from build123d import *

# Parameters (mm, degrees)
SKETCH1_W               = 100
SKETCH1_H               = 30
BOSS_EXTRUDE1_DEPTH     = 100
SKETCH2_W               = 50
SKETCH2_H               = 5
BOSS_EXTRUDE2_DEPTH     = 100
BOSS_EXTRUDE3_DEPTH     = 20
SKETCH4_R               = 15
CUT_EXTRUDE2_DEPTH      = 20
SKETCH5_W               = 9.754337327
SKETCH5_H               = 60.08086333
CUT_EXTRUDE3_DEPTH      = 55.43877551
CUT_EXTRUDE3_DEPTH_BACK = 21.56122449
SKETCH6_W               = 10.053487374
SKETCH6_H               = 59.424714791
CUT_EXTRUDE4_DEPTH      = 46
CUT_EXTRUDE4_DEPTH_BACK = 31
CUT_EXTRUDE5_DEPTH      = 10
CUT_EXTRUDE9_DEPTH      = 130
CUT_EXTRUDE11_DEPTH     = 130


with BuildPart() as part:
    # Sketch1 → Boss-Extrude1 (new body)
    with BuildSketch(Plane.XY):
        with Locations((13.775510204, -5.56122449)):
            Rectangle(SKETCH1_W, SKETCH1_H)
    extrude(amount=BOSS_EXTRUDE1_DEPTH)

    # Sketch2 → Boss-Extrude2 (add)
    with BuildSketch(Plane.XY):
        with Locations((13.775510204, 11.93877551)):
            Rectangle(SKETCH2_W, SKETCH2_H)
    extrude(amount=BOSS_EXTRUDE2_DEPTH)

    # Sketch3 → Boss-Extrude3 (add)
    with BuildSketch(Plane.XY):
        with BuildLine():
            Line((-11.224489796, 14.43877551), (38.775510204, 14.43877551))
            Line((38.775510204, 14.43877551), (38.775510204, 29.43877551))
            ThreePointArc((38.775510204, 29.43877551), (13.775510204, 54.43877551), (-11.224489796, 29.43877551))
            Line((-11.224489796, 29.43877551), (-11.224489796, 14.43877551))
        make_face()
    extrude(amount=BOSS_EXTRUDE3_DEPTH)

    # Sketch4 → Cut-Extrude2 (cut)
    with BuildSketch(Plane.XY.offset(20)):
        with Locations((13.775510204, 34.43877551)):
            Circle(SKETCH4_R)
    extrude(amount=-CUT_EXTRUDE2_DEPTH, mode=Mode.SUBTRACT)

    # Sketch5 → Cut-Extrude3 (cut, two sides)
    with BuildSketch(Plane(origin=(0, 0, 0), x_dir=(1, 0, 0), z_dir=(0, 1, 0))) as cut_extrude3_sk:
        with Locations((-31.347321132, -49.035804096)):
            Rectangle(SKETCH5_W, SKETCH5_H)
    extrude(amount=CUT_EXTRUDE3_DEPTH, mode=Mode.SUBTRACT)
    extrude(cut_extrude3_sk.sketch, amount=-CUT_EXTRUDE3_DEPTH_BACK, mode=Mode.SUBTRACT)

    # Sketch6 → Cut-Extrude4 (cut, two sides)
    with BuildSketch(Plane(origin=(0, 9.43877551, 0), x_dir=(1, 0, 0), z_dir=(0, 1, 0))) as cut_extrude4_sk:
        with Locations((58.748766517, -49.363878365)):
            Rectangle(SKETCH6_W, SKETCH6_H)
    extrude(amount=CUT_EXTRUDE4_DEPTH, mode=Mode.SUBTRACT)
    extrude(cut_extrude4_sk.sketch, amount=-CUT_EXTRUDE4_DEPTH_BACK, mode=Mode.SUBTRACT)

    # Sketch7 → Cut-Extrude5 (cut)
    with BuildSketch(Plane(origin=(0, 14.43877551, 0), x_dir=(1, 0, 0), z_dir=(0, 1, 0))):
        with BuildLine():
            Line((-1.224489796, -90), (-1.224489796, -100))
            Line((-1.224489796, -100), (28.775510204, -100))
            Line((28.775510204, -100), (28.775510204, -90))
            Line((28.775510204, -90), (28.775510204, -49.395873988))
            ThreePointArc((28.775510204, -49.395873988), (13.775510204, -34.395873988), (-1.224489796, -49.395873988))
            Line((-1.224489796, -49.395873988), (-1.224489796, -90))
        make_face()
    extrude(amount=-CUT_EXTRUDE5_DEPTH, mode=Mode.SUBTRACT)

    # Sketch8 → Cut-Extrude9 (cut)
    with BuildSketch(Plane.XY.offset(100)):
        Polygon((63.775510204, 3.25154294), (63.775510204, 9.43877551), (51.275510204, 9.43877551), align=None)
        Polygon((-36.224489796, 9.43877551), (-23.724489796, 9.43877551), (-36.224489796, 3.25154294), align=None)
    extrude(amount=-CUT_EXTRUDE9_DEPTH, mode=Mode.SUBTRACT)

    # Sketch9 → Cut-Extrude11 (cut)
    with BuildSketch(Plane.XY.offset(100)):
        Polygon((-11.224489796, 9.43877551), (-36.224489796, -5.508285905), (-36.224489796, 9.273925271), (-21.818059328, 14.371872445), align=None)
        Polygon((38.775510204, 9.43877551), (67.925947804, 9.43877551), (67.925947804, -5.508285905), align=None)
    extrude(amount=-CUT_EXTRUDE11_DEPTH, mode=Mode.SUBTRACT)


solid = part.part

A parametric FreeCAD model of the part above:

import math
import FreeCAD as App
import Part
import Sketcher
Q = App.Units.Quantity


def add_polygon(sketch, points):
    """Adds a closed chain of lines whose ends are joined by coincident constraints."""
    first, n = sketch.GeometryCount, len(points)
    for a, b in zip(points, points[1:] + points[:1]):
        sketch.addGeometry(Part.LineSegment(App.Vector(*a, 0), App.Vector(*b, 0)), False)
    for i in range(n):
        sketch.addConstraint(Sketcher.Constraint("Coincident", first + i, 2, first + (i + 1) % n, 1))

doc = App.newDocument("Part")
params = doc.addObject("Spreadsheet::Sheet", "Params")
for row, (alias, value) in enumerate([
    ("sketch1_width", "100 mm"),
    ("sketch1_height", "30 mm"),
    ("pad1_length", "100 mm"),
    ("sketch2_width", "50 mm"),
    ("sketch2_height", "5 mm"),
    ("pad2_length", "100 mm"),
    ("sketch3_radius", "25 mm"),
    ("sketch3_height", "15 mm"),
    ("pad3_length", "20 mm"),
    ("sketch4_diameter", "30 mm"),
    ("pocket1_length", "20 mm"),
    ("sketch7_radius", "15 mm"),
    ("pocket4_length", "10 mm"),
    ("sketch8_width", "12.5 mm"),
    ("pocket5_length", "130 mm"),
    ("pocket6_length", "130 mm"),
], start=1):
    params.set(f"A{row}", alias)
    params.set(f"B{row}", "=" + value)
    params.setAlias(f"B{row}", alias)

body = doc.addObject("PartDesign::Body", "Body")

sketch1 = body.newObject("Sketcher::SketchObject", "Sketch")
sketch1.AttachmentSupport = (doc.getObject("XY_Plane"), [""])
sketch1.MapMode = "FlatFace"
add_polygon(sketch1, [(-36, 9), (-36, -21), (64, -21), (64, 9)])
sketch1.addConstraint([
    Sketcher.Constraint("Vertical", 0),
    Sketcher.Constraint("Horizontal", 1),
    Sketcher.Constraint("Vertical", 2),
    Sketcher.Constraint("Horizontal", 3),
    Sketcher.Constraint("DistanceX", 1, 1, 1, 2, Q("100 mm")),
    Sketcher.Constraint("DistanceY", 0, 2, 0, 1, Q("30 mm")),
    Sketcher.Constraint("DistanceX", 0, 2, -1, 1, Q("36.22449 mm")),
    Sketcher.Constraint("DistanceY", 0, 2, -1, 1, Q("20.561224 mm")),
])
sketch1.setExpression("Constraints[8]", "Params.sketch1_width")
sketch1.setExpression("Constraints[9]", "Params.sketch1_height")
pad1 = body.newObject("PartDesign::Pad", "Pad")
pad1.Profile = sketch1
pad1.setExpression("Length", "Params.pad1_length")

sketch2 = body.newObject("Sketcher::SketchObject", "Sketch001")
sketch2.AttachmentSupport = (doc.getObject("XY_Plane"), [""])
sketch2.MapMode = "FlatFace"
add_polygon(sketch2, [(-11, 14), (-11, 9), (39, 9), (39, 14)])
sketch2.addConstraint([
    Sketcher.Constraint("Vertical", 0),
    Sketcher.Constraint("Horizontal", 1),
    Sketcher.Constraint("Vertical", 2),
    Sketcher.Constraint("Horizontal", 3),
    Sketcher.Constraint("DistanceX", 1, 1, 1, 2, Q("50 mm")),
    Sketcher.Constraint("DistanceY", 0, 2, 0, 1, Q("5 mm")),
    Sketcher.Constraint("DistanceX", 0, 2, -1, 1, Q("11.22449 mm")),
    Sketcher.Constraint("DistanceY", -1, 1, 0, 2, Q("9.438776 mm")),
])
sketch2.setExpression("Constraints[8]", "Params.sketch2_width")
sketch2.setExpression("Constraints[9]", "Params.sketch2_height")
pad2 = body.newObject("PartDesign::Pad", "Pad001")
pad2.Profile = sketch2
pad2.setExpression("Length", "Params.pad2_length")

sketch3 = body.newObject("Sketcher::SketchObject", "Sketch002")
sketch3.AttachmentSupport = (doc.getObject("XY_Plane"), [""])
sketch3.MapMode = "FlatFace"
sketch3.addGeometry([
    Part.LineSegment(App.Vector(-11, 14, 0), App.Vector(39, 14, 0)),
    Part.LineSegment(App.Vector(39, 14, 0), App.Vector(39, 29, 0)),
    Part.ArcOfCircle(Part.Circle(App.Vector(14, 29, 0), App.Vector(0, 0, 1), 25), math.radians(0), math.radians(180)),
    Part.LineSegment(App.Vector(-11, 29, 0), App.Vector(-11, 14, 0)),
], False)
sketch3.addConstraint([
    Sketcher.Constraint("Coincident", 0, 2, 1, 1),
    Sketcher.Constraint("Tangent", 1, 2, 2, 1),
    Sketcher.Constraint("Tangent", 2, 2, 3, 1),
    Sketcher.Constraint("Coincident", 3, 2, 0, 1),
    Sketcher.Constraint("Horizontal", 0),
    Sketcher.Constraint("Vertical", 1),
    Sketcher.Constraint("Vertical", 3),
    Sketcher.Constraint("Radius", 2, Q("25 mm")),
    Sketcher.Constraint("DistanceY", 1, 1, 1, 2, Q("15 mm")),
    Sketcher.Constraint("DistanceX", -1, 1, 2, 3, Q("13.77551 mm")),
    Sketcher.Constraint("DistanceY", -1, 1, 2, 3, Q("29.438776 mm")),
])
sketch3.setExpression("Constraints[7]", "Params.sketch3_radius")
sketch3.setExpression("Constraints[8]", "Params.sketch3_height")
pad3 = body.newObject("PartDesign::Pad", "Pad002")
pad3.Profile = sketch3
pad3.setExpression("Length", "Params.pad3_length")

sketch4 = body.newObject("Sketcher::SketchObject", "Sketch003")
sketch4.AttachmentSupport = (doc.getObject("XY_Plane"), [""])
sketch4.MapMode = "FlatFace"
sketch4.AttachmentOffset = App.Placement(App.Vector(0, 0, 20), App.Rotation())
sketch4.addGeometry(Part.Circle(App.Vector(14, 34, 0), App.Vector(0, 0, 1), 15), False)
sketch4.addConstraint([
    Sketcher.Constraint("Diameter", 0, Q("30 mm")),
    Sketcher.Constraint("DistanceX", -1, 1, 0, 3, Q("13.77551 mm")),
    Sketcher.Constraint("DistanceY", -1, 1, 0, 3, Q("34.438776 mm")),
])
sketch4.setExpression("Constraints[0]", "Params.sketch4_diameter")
pocket1 = body.newObject("PartDesign::Pocket", "Pocket")
pocket1.Profile = sketch4
pocket1.setExpression("Length", "Params.pocket1_length")

sketch5 = body.newObject("Sketcher::SketchObject", "Sketch004")
sketch5.AttachmentSupport = (doc.getObject("XZ_Plane"), [""])
sketch5.MapMode = "FlatFace"
add_polygon(sketch5, [(-36, 19), (-36, 79), (-26, 79), (-26, 19)])
sketch5.addConstraint([
    Sketcher.Constraint("Vertical", 0),
    Sketcher.Constraint("Horizontal", 1),
    Sketcher.Constraint("Vertical", 2),
    Sketcher.Constraint("Horizontal", 3),
    Sketcher.Constraint("DistanceX", 1, 1, 1, 2, Q("9.754337 mm")),
    Sketcher.Constraint("DistanceY", 0, 1, 0, 2, Q("60.080863 mm")),
    Sketcher.Constraint("DistanceX", 0, 2, -1, 1, Q("36.22449 mm")),
    Sketcher.Constraint("DistanceY", -1, 1, 0, 2, Q("79.076236 mm")),
])
pocket2 = body.newObject("PartDesign::Pocket", "Pocket001")
pocket2.Profile = sketch5
pocket2.Type = "ThroughAll"
pocket2.Midplane = True

sketch6 = body.newObject("Sketcher::SketchObject", "Sketch005")
sketch6.AttachmentSupport = (doc.getObject("XZ_Plane"), [""])
sketch6.MapMode = "FlatFace"
sketch6.AttachmentOffset = App.Placement(App.Vector(0, 0, -9.438776), App.Rotation())
add_polygon(sketch6, [(54, 20), (54, 79), (64, 79), (64, 20)])
sketch6.addConstraint([
    Sketcher.Constraint("Vertical", 0),
    Sketcher.Constraint("Horizontal", 1),
    Sketcher.Constraint("Vertical", 2),
    Sketcher.Constraint("Horizontal", 3),
    Sketcher.Constraint("DistanceX", 1, 1, 1, 2, Q("10.053487 mm")),
    Sketcher.Constraint("DistanceY", 0, 1, 0, 2, Q("59.424715 mm")),
    Sketcher.Constraint("DistanceX", -1, 1, 1, 2, Q("63.77551 mm")),
    Sketcher.Constraint("DistanceY", -1, 1, 2, 2, Q("19.651521 mm")),
])
pocket3 = body.newObject("PartDesign::Pocket", "Pocket002")
pocket3.Profile = sketch6
pocket3.Type = "ThroughAll"
pocket3.Midplane = True

sketch7 = body.newObject("Sketcher::SketchObject", "Sketch006")
sketch7.AttachmentSupport = (doc.getObject("XZ_Plane"), [""])
sketch7.MapMode = "FlatFace"
sketch7.AttachmentOffset = App.Placement(App.Vector(0, 0, -14.438776), App.Rotation())
sketch7.addGeometry([
    Part.LineSegment(App.Vector(-1, 100, 0), App.Vector(29, 100, 0)),
    Part.LineSegment(App.Vector(29, 100, 0), App.Vector(29, 49, 0)),
    Part.ArcOfCircle(Part.Circle(App.Vector(14, 49, 0), App.Vector(0, 0, 1), 15), math.radians(180), math.radians(360)),
    Part.LineSegment(App.Vector(-1, 49, 0), App.Vector(-1, 100, 0)),
], False)
sketch7.addConstraint([
    Sketcher.Constraint("Coincident", 0, 2, 1, 1),
    Sketcher.Constraint("Tangent", 1, 2, 2, 2),
    Sketcher.Constraint("Tangent", 2, 1, 3, 1),
    Sketcher.Constraint("Coincident", 3, 2, 0, 1),
    Sketcher.Constraint("Horizontal", 0),
    Sketcher.Constraint("Vertical", 1),
    Sketcher.Constraint("Vertical", 3),
    Sketcher.Constraint("Radius", 2, Q("15 mm")),
    Sketcher.Constraint("DistanceY", -1, 1, 0, 2, Q("100 mm")),
    Sketcher.Constraint("DistanceY", 1, 2, 1, 1, Q("50.604126 mm")),
    Sketcher.Constraint("DistanceX", -1, 1, 2, 3, Q("13.77551 mm")),
])
sketch7.setExpression("Constraints[7]", "Params.sketch7_radius")
pocket4 = body.newObject("PartDesign::Pocket", "Pocket003")
pocket4.Profile = sketch7
pocket4.setExpression("Length", "Params.pocket4_length")
pocket4.Reversed = True

sketch8 = body.newObject("Sketcher::SketchObject", "Sketch007")
sketch8.AttachmentSupport = (doc.getObject("XY_Plane"), [""])
sketch8.MapMode = "FlatFace"
sketch8.AttachmentOffset = App.Placement(App.Vector(0, 0, 100), App.Rotation())
add_polygon(sketch8, [(64, 3), (64, 9), (51, 9)])
add_polygon(sketch8, [(-24, 9), (-36, 9), (-36, 3)])
sketch8.addConstraint([
    Sketcher.Constraint("Vertical", 0),
    Sketcher.Constraint("Horizontal", 1),
    Sketcher.Constraint("Horizontal", 3),
    Sketcher.Constraint("Vertical", 4),
    Sketcher.Constraint("Horizontal", 1, 2, 3, 2),
    Sketcher.Constraint("Horizontal", 2, 2, 4, 2),
    Sketcher.Constraint("Equal", 1, 3),
    Sketcher.Constraint("DistanceX", 1, 2, 1, 1, Q("12.5 mm")),
    Sketcher.Constraint("DistanceX", 3, 2, 0, 2, Q("100 mm")),
    Sketcher.Constraint("DistanceY", 0, 1, 0, 2, Q("6.187233 mm")),
    Sketcher.Constraint("DistanceX", -1, 1, 0, 2, Q("63.77551 mm")),
    Sketcher.Constraint("DistanceY", -1, 1, 0, 2, Q("9.438776 mm")),
])
sketch8.setExpression("Constraints[13]", "Params.sketch8_width")
pocket5 = body.newObject("PartDesign::Pocket", "Pocket004")
pocket5.Profile = sketch8
pocket5.setExpression("Length", "Params.pocket5_length")

sketch9 = body.newObject("Sketcher::SketchObject", "Sketch008")
sketch9.AttachmentSupport = (doc.getObject("XY_Plane"), [""])
sketch9.MapMode = "FlatFace"
sketch9.AttachmentOffset = App.Placement(App.Vector(0, 0, 100), App.Rotation())
add_polygon(sketch9, [(-36, -6), (-11, 9), (-22, 14), (-36, 9)])
add_polygon(sketch9, [(68, 9), (39, 9), (68, -6)])
sketch9.addConstraint([
    Sketcher.Constraint("Vertical", 3),
    Sketcher.Constraint("Horizontal", 4),
    Sketcher.Constraint("Vertical", 6),
    Sketcher.Constraint("Horizontal", 0, 2, 4, 2),
    Sketcher.Constraint("Horizontal", 3, 2, 5, 2),
    Sketcher.Constraint("DistanceX", 2, 2, 0, 2, Q("25 mm")),
    Sketcher.Constraint("DistanceX", 0, 2, 4, 2, Q("50 mm")),
    Sketcher.Constraint("DistanceY", 3, 2, 3, 1, Q("14.782211 mm")),
    Sketcher.Constraint("DistanceY", 6, 1, 6, 2, Q("14.947061 mm")),
    Sketcher.Constraint("Distance", 2, Q("15.281829 mm")),
    Sketcher.Constraint("Distance", 5, Q("32.759161 mm")),
    Sketcher.Constraint("DistanceX", 0, 2, -1, 1, Q("11.22449 mm")),
    Sketcher.Constraint("DistanceX", 1, 2, -1, 1, Q("21.818059 mm")),
    Sketcher.Constraint("DistanceY", -1, 1, 0, 2, Q("9.438776 mm")),
])
pocket6 = body.newObject("PartDesign::Pocket", "Pocket005")
pocket6.Profile = sketch9
pocket6.setExpression("Length", "Params.pocket6_length")

doc.recompute()
